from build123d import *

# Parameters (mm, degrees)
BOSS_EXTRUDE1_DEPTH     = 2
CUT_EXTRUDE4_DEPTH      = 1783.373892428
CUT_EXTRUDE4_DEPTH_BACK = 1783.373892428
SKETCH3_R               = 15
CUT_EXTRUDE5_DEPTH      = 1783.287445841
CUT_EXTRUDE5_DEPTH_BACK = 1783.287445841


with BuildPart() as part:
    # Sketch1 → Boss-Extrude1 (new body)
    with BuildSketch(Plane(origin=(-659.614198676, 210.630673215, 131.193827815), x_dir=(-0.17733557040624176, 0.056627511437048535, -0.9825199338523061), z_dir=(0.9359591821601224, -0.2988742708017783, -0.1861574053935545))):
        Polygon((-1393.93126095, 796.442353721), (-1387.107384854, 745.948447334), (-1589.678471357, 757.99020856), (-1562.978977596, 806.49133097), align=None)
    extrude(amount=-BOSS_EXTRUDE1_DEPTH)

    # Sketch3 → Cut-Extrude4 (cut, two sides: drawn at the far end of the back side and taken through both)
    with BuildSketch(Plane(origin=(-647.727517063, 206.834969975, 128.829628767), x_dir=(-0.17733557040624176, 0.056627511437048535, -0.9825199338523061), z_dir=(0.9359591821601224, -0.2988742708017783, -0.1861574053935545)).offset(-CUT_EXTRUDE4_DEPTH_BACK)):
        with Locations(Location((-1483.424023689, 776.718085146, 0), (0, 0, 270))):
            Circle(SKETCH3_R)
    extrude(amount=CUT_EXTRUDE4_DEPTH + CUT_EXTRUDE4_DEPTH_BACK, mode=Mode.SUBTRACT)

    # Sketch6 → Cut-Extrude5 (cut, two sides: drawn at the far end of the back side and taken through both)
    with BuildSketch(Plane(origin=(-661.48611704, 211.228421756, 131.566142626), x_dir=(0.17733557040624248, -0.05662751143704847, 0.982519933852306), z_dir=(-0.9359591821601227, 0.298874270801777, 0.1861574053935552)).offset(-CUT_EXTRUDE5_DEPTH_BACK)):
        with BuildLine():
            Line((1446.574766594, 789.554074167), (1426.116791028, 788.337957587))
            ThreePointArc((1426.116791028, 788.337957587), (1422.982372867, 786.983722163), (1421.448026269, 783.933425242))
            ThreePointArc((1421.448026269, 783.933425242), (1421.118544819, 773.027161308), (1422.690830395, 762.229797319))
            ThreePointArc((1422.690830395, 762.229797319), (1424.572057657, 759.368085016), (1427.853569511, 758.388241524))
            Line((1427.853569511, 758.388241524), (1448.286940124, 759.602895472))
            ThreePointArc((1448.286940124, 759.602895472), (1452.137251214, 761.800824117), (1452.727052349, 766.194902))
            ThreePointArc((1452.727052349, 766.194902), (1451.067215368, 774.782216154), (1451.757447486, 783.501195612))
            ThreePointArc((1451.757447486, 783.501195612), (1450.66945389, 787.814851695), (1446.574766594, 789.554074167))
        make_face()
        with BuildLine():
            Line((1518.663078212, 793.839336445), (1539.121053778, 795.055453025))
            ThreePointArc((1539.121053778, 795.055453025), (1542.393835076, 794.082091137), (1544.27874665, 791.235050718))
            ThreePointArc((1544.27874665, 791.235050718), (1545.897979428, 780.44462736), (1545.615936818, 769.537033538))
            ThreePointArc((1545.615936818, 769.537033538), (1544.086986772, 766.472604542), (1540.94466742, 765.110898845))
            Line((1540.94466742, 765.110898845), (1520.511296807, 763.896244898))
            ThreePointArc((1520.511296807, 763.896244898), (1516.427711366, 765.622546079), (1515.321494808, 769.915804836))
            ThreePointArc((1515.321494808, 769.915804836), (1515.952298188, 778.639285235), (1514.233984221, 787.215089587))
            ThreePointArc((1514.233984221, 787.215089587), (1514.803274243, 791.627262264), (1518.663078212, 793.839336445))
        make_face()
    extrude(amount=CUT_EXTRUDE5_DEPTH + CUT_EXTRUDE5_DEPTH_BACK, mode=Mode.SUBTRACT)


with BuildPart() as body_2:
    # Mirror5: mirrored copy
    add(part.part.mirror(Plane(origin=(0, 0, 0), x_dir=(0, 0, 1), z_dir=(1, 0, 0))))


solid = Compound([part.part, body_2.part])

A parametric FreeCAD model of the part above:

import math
import FreeCAD as App
import Part
import Sketcher

V = App.Vector


def add_polygon(sketch, points):
    """Adds a closed chain of lines whose ends are joined by coincident constraints."""
    first, n = sketch.GeometryCount, len(points)
    for a, b in zip(points, points[1:] + points[:1]):
        sketch.addGeometry(Part.LineSegment(App.Vector(*a, 0), App.Vector(*b, 0)), False)
    for i in range(n):
        sketch.addConstraint(Sketcher.Constraint("Coincident", first + i, 2, first + (i + 1) % n, 1))

doc = App.newDocument("Part")
body = doc.addObject("PartDesign::Body", "Body")

# Sketch on an angled plane
sketch1 = body.newObject("Sketcher::SketchObject", "Sketch")
sketch1.Placement = App.Placement(V(-659.614199, 210.630673, 131.193828), App.Rotation(V(-0.17733557, 0.056627511, -0.982519934), V(0.30419156, 0.952610883, 0), V(0.935959182, -0.298874271, -0.186157405), "ZXY"))
add_polygon(sketch1, [(-1387.107385, 745.948447), (-1393.931261, 796.442354), (-1562.978978, 806.491331), (-1589.678472, 757.990208)])  # lines 0-3
sketch1.addConstraint([
    Sketcher.Constraint("Parallel", 1, 3),
    Sketcher.Constraint("Distance", 0, 50.952918),
    Sketcher.Constraint("Distance", 3, 202.92868),
    Sketcher.Constraint("DistanceX", 0, 2, -1, 1, 1393.931261),
    Sketcher.Constraint("DistanceY", -1, 1, 1, 2, 806.491331),
    Sketcher.Constraint("DistanceX", 2, 2, -1, 1, 1589.678472),
    Sketcher.Constraint("DistanceY", -1, 1, 2, 2, 757.990208),
    Sketcher.Constraint("DistanceY", 3, 2, 2, 2, 12.041761),
])
pad1 = body.newObject("PartDesign::Pad", "Pad")
pad1.Profile = sketch1
pad1.Length = 2
pad1.Reversed = True

# Sketch on an angled plane
sketch2 = body.newObject("Sketcher::SketchObject", "Sketch001")
sketch2.Placement = App.Placement(V(-647.727517, 206.83497, 128.829629), App.Rotation(V(-0.17733557, 0.056627511, -0.982519934), V(0.30419156, 0.952610883, 0), V(0.935959182, -0.298874271, -0.186157405), "ZXY"))
sketch2.addGeometry(Part.Circle(V(-1483.424024, 776.718085, 0), V(0, 0, 1), 15), False)
sketch2.addConstraint([
    Sketcher.Constraint("Diameter", 0, 30.0),
    Sketcher.Constraint("DistanceX", 0, 3, -1, 1, 1483.424024),
    Sketcher.Constraint("DistanceY", -1, 1, 0, 3, 776.718085),
])
pocket1 = body.newObject("PartDesign::Pocket", "Pocket")
pocket1.Profile = sketch2
pocket1.Type = "ThroughAll"
pocket1.Midplane = True

# Sketch on an angled plane
sketch3 = body.newObject("Sketcher::SketchObject", "Sketch002")
sketch3.Placement = App.Placement(V(-661.486117, 211.228422, 131.566142), App.Rotation(V(0.17733557, -0.056627511, 0.982519934), V(0.30419156, 0.952610883, 0), V(-0.935959182, 0.298874271, 0.186157405), "ZXY"))
sketch3.addGeometry([
    Part.LineSegment(V(1446.574767, 789.554074, 0), V(1426.116791, 788.337957, 0)),  # 0
    Part.ArcOfCircle(Part.Circle(V(1426.413491, 783.346768, 0), V(0, 0, 1), 5), math.radians(93.401923), math.radians(173.261887)),  # 1
    Part.ArcOfCircle(Part.Circle(V(1483.516328, 776.600215, 0), V(0, 0, 1), 62.5), math.radians(173.261887), math.radians(193.292755)),  # 2
    Part.ArcOfCircle(Part.Circle(V(1427.55687, 763.379431, 0), V(0, 0, 1), 5), math.radians(-166.707245), math.radians(-86.598077)),  # 3
    Part.LineSegment(V(1427.85357, 758.388241, 0), V(1448.28694, 759.602895, 0)),  # 4
    Part.ArcOfCircle(Part.Circle(V(1447.990241, 764.594084, 0), V(0, 0, 1), 5), math.radians(-86.598077), math.radians(18.672811)),  # 5
    Part.ArcOfCircle(Part.Circle(V(1483.516328, 776.600215, 0), V(0, 0, 1), 32.5), math.radians(167.740607), math.radians(198.672811)),  # 6
    Part.ArcOfCircle(Part.Circle(V(1446.871466, 784.562885, 0), V(0, 0, 1), 5), math.radians(-12.259393), math.radians(93.401923)),  # 7
    Part.LineSegment(V(1539.121054, 795.055453, 0), V(1518.663078, 793.839336, 0)),  # 8
    Part.ArcOfCircle(Part.Circle(V(1518.959778, 788.848147, 0), V(0, 0, 1), 5), math.radians(93.401923), math.radians(199.063238)),  # 9
    Part.ArcOfCircle(Part.Circle(V(1483.516328, 776.600215, 0), V(0, 0, 1), 32.5), math.radians(-11.868966), math.radians(19.063238)),  # 10
    Part.ArcOfCircle(Part.Circle(V(1520.214598, 768.887434, 0), V(0, 0, 1), 5), math.radians(168.131034), math.radians(273.401923)),  # 11
    Part.LineSegment(V(1520.511297, 763.896245, 0), V(1540.944668, 765.110899, 0)),  # 12
    Part.ArcOfCircle(Part.Circle(V(1540.647968, 770.102088, 0), V(0, 0, 1), 5), math.radians(-86.598077), math.radians(-6.48891)),  # 13
    Part.ArcOfCircle(Part.Circle(V(1483.516328, 776.600215, 0), V(0, 0, 1), 62.5), math.radians(-6.48891), math.radians(13.541958)),  # 14
    Part.ArcOfCircle(Part.Circle(V(1539.417753, 790.064264, 0), V(0, 0, 1), 5), math.radians(13.541958), math.radians(93.401923)),  # 15
], False)
sketch3.addConstraint([
    Sketcher.Constraint("Tangent", 0, 2, 1, 1),
    Sketcher.Constraint("Tangent", 1, 2, 2, 1),
    Sketcher.Constraint("Tangent", 2, 2, 3, 1),
    Sketcher.Constraint("Tangent", 3, 2, 4, 1),
    Sketcher.Constraint("Tangent", 4, 2, 5, 1),
    Sketcher.Constraint("Tangent", 5, 2, 6, 2),
    Sketcher.Constraint("Tangent", 6, 1, 7, 1),
    Sketcher.Constraint("Tangent", 7, 2, 0, 1),
    Sketcher.Constraint("Tangent", 8, 2, 9, 1),
    Sketcher.Constraint("Tangent", 9, 2, 10, 2),
    Sketcher.Constraint("Tangent", 10, 1, 11, 1),
    Sketcher.Constraint("Tangent", 11, 2, 12, 1),
    Sketcher.Constraint("Tangent", 12, 2, 13, 1),
    Sketcher.Constraint("Tangent", 13, 2, 14, 1),
    Sketcher.Constraint("Tangent", 14, 2, 15, 1),
    Sketcher.Constraint("Tangent", 15, 2, 8, 1),
    Sketcher.Constraint("Coincident", 6, 3, 2, 3),
    Sketcher.Constraint("Coincident", 10, 3, 2, 3),
    Sketcher.Constraint("Coincident", 14, 3, 2, 3),
    Sketcher.Constraint("Equal", 1, 3),
    Sketcher.Constraint("Equal", 3, 5),
    Sketcher.Constraint("Equal", 5, 7),
    Sketcher.Constraint("Equal", 7, 9),
    Sketcher.Constraint("Equal", 6, 10),
    Sketcher.Constraint("Equal", 9, 11),
    Sketcher.Constraint("Equal", 11, 13),
    Sketcher.Constraint("Equal", 2, 14),
    Sketcher.Constraint("Equal", 13, 15),
    Sketcher.Constraint("Parallel", 0, 4),
    Sketcher.Constraint("Parallel", 4, 8),
    Sketcher.Constraint("Parallel", 8, 12),
    Sketcher.Constraint("Equal", 0, 8),
    Sketcher.Constraint("Equal", 4, 12),
    Sketcher.Constraint("Radius", 1, 5.0),
    Sketcher.Constraint("Radius", 2, 62.5),
    Sketcher.Constraint("Radius", 6, 32.5),
    Sketcher.Constraint("DistanceY", 13, 3, 9, 2, 17.113002),
    Sketcher.Constraint("DistanceY", -1, 1, 5, 2, 766.194902),
    Sketcher.Constraint("DistanceY", -1, 1, 12, 2, 765.110899),
    Sketcher.Constraint("DistanceY", 5, 3, 7, 3, 19.9688),
    Sketcher.Constraint("DistanceX", -1, 1, 1, 3, 1426.413491),
])
pocket2 = body.newObject("PartDesign::Pocket", "Pocket001")
pocket2.Profile = sketch3
pocket2.Type = "ThroughAll"
pocket2.Midplane = True
body2 = doc.addObject("PartDesign::Body", "Body001")
doc.recompute()

mirroring = doc.addObject("Part::Mirroring", "Mirroring")
mirroring.Source = body
mirroring.Base = V(0, 0, 0)
mirroring.Normal = V(1, 0, 0)
body2.BaseFeature = mirroring
doc.recompute()
mirroring.Visibility = False

doc.recompute()
